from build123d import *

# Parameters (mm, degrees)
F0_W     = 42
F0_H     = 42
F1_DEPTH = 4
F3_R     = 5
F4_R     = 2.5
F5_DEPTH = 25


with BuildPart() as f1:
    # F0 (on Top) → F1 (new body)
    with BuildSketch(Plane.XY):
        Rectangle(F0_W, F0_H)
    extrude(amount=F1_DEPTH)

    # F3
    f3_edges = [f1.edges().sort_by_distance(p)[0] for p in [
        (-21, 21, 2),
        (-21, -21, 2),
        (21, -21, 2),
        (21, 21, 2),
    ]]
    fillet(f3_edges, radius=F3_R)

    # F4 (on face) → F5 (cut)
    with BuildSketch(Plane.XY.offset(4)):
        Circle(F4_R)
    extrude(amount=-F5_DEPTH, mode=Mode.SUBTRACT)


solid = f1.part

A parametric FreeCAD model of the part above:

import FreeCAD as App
import Part
import Sketcher

V = App.Vector


def edges_at(feature, points):
    """Names of the edges that pass closest to the given points."""
    edges = feature.Shape.Edges
    near = lambda p: min(range(len(edges)), key=lambda i: edges[i].distToShape(Part.Vertex(*p))[0])
    return sorted({f"Edge{near(p) + 1}" for p in points})

doc = App.newDocument("Part")
body = doc.addObject("PartDesign::Body", "Body")

# Sketch on XY plane
sketch1 = body.newObject("Sketcher::SketchObject", "Sketch")
sketch1.AttachmentSupport = (doc.getObject("XY_Plane"), [""])
sketch1.MapMode = "FlatFace"
sketch1.addGeometry([
    Part.LineSegment(V(-21, 21, 0), V(-21, -21, 0)),
    Part.LineSegment(V(-21, -21, 0), V(21, -21, 0)),
    Part.LineSegment(V(21, -21, 0), V(21, 21, 0)),
    Part.LineSegment(V(21, 21, 0), V(-21, 21, 0)),
], False)
sketch1.addConstraint([
    Sketcher.Constraint("Coincident", 0, 2, 1, 1),
    Sketcher.Constraint("Coincident", 1, 2, 2, 1),
    Sketcher.Constraint("Coincident", 2, 2, 3, 1),
    Sketcher.Constraint("Coincident", 3, 2, 0, 1),
    Sketcher.Constraint("Vertical", 0),
    Sketcher.Constraint("Horizontal", 1),
    Sketcher.Constraint("Vertical", 2),
    Sketcher.Constraint("Horizontal", 3),
    Sketcher.Constraint("Symmetric", 0, 2, 2, 2, -1, 1),
    Sketcher.Constraint("Equal", 3, 0),
    Sketcher.Constraint("DistanceX", 1, 1, 1, 2, 42.0),
])
pad1 = body.newObject("PartDesign::Pad", "Pad")
pad1.Profile = sketch1
pad1.Length = 4
doc.recompute()

fillet = body.newObject("PartDesign::Fillet", "Fillet")
fillet.Base = (pad1, edges_at(pad1, [
    (-21, 21, 2),
    (-21, -21, 2),
    (21, -21, 2),
    (21, 21, 2),
]))
fillet.Radius = 5

# Sketch on XY plane
sketch2 = body.newObject("Sketcher::SketchObject", "Sketch001")
sketch2.AttachmentSupport = (doc.getObject("XY_Plane"), [""])
sketch2.MapMode = "FlatFace"
sketch2.AttachmentOffset = App.Placement(V(0, 0, 4), App.Rotation())
sketch2.addGeometry(Part.Circle(V(0, 0, 0), V(0, 0, 1), 2.5), False)
sketch2.addConstraint([
    Sketcher.Constraint("Coincident", 0, 3, -1, 1),
    Sketcher.Constraint("Diameter", 0, 5.0),
])
pocket1 = body.newObject("PartDesign::Pocket", "Pocket")
pocket1.Profile = sketch2
pocket1.Length = 25

doc.recompute()
